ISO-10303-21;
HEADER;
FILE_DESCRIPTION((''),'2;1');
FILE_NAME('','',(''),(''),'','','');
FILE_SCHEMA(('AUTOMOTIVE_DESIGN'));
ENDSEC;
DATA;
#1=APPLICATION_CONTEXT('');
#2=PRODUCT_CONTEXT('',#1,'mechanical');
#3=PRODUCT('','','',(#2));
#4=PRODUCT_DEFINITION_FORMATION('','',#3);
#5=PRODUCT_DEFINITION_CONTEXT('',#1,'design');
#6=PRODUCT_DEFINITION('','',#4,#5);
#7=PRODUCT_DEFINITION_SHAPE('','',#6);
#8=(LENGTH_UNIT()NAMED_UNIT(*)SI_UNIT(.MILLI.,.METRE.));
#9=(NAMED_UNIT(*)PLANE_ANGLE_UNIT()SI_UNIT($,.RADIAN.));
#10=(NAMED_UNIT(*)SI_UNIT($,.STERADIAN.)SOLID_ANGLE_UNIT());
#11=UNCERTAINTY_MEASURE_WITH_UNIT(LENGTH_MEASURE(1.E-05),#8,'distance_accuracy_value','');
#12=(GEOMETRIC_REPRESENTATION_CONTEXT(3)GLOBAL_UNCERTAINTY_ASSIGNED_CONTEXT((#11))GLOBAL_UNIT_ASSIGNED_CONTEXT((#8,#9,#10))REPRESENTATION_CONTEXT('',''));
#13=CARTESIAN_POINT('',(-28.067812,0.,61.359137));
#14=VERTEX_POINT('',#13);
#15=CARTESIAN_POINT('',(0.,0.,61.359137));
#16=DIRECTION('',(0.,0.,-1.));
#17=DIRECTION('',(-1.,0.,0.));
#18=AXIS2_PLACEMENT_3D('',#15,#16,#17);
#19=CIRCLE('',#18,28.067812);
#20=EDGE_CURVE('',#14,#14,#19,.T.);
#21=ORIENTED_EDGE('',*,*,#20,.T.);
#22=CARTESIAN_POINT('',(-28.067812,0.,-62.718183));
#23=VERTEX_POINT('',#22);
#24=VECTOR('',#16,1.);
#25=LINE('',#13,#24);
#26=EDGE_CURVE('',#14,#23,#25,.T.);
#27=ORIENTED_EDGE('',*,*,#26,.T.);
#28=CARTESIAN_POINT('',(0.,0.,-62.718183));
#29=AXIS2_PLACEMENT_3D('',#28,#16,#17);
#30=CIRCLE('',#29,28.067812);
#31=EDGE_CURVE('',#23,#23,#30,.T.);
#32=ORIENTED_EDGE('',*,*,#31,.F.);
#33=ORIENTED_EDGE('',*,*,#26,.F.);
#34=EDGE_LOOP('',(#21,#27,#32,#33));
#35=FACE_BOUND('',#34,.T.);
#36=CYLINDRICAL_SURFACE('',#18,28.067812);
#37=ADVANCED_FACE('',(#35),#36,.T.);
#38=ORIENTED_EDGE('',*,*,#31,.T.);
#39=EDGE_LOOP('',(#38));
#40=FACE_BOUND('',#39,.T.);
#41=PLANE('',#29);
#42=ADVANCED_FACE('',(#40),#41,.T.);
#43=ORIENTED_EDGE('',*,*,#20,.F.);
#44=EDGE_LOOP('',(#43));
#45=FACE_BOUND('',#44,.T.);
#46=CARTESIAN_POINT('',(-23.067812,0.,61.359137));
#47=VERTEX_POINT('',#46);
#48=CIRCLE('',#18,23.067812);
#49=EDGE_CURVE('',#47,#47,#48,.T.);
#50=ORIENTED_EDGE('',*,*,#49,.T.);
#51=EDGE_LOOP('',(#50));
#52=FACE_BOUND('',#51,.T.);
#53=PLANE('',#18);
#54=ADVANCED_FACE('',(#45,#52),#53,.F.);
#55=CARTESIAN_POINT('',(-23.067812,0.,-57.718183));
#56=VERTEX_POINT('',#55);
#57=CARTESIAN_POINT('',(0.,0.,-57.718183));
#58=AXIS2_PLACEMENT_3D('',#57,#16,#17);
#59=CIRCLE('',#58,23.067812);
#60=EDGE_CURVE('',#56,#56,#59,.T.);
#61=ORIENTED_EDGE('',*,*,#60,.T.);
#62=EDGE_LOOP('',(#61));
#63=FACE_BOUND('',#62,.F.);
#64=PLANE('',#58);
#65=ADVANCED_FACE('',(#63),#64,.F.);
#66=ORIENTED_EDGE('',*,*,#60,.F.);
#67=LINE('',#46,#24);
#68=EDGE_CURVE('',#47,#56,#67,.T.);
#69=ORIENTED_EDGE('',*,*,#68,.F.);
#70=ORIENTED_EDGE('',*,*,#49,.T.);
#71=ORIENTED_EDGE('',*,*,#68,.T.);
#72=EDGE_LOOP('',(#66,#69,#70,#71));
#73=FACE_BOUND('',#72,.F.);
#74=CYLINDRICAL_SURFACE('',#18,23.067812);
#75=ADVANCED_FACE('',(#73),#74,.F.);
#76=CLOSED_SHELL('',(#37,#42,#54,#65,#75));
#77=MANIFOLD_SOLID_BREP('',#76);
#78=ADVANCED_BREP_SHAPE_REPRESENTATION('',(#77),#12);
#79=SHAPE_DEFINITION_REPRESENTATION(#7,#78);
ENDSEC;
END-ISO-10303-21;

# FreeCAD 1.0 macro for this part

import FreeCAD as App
import Part
import Sketcher

V = App.Vector
Q = App.Units.Quantity


def faces_at(feature, points):
    """Names of the faces that lie closest to the given points."""
    faces = feature.Shape.Faces
    near = lambda p: min(range(len(faces)), key=lambda i: faces[i].distToShape(Part.Vertex(*p))[0])
    return sorted({f"Face{near(p) + 1}" for p in points})

doc = App.newDocument("Part")
body = doc.addObject("PartDesign::Body", "Body")

sketch1 = body.newObject("Sketcher::SketchObject", "Sketch")
sketch1.AttachmentSupport = (doc.getObject("XZ_Plane"), [""])
sketch1.MapMode = "FlatFace"
sketch1.addGeometry(Part.LineSegment(V(0, 61, 0), V(-28, 61, 0)), False)
sketch1.addGeometry(Part.LineSegment(V(-28, 61, 0), V(-28, -63, 0)), False)
sketch1.addGeometry(Part.LineSegment(V(-28, -63, 0), V(0, -63, 0)), False)
sketch1.addGeometry(Part.LineSegment(V(0, -63, 0), V(0, 61, 0)), False)
sketch1.addConstraint(Sketcher.Constraint("Coincident", 0, 2, 1, 1))
sketch1.addConstraint(Sketcher.Constraint("Coincident", 1, 2, 2, 1))
sketch1.addConstraint(Sketcher.Constraint("Coincident", 2, 2, 3, 1))
sketch1.addConstraint(Sketcher.Constraint("Coincident", 3, 2, 0, 1))
sketch1.addConstraint(Sketcher.Constraint("Horizontal", 0))
sketch1.addConstraint(Sketcher.Constraint("Vertical", 1))
sketch1.addConstraint(Sketcher.Constraint("Horizontal", 2))
sketch1.addConstraint(Sketcher.Constraint("Vertical", 3))
sketch1.addConstraint(Sketcher.Constraint("PointOnObject", 2, 2, -2))
sketch1.addConstraint(Sketcher.Constraint("DistanceX", 0, 2, 0, 1, Q("28.067812 mm")))
sketch1.addConstraint(Sketcher.Constraint("DistanceY", 1, 2, 1, 1, Q("124.07732 mm")))
sketch1.addConstraint(Sketcher.Constraint("DistanceY", -1, 1, 0, 2, Q("61.359137 mm")))
revolution = body.newObject("PartDesign::Revolution", "Revolution")
revolution.Profile = sketch1
revolution.ReferenceAxis = (sketch1, ["V_Axis"])
revolution.Angle = 360
doc.recompute()

thickness = body.newObject("PartDesign::Thickness", "Thickness")
thickness.Base = (revolution, faces_at(revolution, [(0, 0, 61.359)]))
thickness.Value = 5
thickness.Reversed = True
thickness.Join = "Arc"

doc.recompute()
